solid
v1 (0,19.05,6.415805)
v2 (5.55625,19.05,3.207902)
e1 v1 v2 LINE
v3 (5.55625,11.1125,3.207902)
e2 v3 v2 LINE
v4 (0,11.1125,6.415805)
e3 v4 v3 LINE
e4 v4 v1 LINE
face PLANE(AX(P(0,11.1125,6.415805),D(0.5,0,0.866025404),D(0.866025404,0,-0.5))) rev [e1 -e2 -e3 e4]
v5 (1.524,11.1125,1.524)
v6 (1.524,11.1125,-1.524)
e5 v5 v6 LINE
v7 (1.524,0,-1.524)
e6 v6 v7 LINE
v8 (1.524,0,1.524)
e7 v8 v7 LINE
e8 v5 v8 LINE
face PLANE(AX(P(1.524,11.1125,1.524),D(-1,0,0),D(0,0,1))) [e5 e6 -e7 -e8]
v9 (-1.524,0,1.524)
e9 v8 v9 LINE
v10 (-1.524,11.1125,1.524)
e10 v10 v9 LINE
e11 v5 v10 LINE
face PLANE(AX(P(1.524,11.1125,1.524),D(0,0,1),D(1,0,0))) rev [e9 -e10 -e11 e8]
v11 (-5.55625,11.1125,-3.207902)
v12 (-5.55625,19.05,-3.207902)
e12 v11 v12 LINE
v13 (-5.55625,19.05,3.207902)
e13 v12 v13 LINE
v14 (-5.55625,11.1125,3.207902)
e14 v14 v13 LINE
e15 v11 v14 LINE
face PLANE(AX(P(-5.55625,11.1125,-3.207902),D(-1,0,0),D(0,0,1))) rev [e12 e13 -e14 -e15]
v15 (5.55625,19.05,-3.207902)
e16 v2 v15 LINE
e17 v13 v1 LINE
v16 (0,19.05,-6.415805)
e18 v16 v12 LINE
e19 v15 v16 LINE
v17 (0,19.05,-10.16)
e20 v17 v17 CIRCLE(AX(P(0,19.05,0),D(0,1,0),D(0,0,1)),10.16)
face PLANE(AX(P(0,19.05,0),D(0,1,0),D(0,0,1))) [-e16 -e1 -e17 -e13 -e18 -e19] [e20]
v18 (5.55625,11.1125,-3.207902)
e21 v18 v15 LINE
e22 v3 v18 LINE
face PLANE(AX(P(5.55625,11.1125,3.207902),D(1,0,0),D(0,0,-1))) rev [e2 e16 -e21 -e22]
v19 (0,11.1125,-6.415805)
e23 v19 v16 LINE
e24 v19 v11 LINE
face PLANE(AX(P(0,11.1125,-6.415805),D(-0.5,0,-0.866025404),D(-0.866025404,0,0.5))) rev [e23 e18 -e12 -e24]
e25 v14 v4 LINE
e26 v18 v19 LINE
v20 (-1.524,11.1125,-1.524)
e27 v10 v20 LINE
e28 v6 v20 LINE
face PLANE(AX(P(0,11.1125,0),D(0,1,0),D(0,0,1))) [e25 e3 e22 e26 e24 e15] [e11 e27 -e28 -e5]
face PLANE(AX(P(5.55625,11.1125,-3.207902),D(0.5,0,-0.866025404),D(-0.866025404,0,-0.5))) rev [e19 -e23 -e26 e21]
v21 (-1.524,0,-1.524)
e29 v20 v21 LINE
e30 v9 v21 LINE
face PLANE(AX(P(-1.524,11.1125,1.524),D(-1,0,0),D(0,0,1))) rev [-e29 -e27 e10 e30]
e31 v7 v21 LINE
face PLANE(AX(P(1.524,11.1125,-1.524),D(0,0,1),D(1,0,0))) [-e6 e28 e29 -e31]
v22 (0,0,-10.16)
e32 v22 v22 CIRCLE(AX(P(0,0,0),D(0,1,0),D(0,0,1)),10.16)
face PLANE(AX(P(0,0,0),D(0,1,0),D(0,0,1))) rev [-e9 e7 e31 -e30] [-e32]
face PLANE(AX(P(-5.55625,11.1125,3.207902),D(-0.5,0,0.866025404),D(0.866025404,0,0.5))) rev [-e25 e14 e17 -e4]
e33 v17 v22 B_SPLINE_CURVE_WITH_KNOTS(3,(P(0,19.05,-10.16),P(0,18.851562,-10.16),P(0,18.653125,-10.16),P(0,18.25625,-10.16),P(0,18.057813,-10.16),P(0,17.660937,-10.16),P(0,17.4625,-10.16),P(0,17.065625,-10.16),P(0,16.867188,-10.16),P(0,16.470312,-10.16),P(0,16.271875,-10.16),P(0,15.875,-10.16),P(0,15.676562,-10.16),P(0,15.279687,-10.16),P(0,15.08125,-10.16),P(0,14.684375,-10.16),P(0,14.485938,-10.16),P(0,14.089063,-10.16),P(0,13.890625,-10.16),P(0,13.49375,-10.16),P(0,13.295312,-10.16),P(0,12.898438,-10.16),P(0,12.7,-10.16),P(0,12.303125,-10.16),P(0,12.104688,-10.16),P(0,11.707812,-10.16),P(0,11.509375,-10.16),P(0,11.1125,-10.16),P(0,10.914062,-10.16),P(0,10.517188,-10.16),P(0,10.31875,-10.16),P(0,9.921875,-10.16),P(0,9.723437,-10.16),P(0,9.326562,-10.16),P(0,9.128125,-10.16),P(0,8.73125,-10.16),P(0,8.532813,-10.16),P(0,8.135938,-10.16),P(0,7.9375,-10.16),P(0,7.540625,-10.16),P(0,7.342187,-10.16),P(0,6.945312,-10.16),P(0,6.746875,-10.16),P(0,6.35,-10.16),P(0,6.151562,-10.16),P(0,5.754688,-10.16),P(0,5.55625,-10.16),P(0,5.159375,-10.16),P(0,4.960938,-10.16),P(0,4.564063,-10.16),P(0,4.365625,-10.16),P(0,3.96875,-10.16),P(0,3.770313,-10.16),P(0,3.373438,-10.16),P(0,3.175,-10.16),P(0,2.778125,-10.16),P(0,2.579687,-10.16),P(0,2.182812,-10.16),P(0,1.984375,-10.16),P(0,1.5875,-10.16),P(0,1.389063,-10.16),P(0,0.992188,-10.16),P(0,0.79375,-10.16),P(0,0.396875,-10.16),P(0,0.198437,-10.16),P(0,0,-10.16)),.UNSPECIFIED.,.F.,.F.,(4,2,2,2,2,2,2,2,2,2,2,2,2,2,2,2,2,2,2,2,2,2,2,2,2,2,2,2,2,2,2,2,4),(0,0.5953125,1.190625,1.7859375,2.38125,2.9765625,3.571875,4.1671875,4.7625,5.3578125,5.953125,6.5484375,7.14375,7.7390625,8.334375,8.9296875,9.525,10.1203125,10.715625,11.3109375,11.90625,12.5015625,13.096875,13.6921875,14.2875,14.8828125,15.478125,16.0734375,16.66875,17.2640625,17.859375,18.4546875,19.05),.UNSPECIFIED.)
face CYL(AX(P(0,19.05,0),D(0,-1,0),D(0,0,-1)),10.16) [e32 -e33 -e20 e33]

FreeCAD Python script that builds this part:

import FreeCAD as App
import Part
import Sketcher

V = App.Vector
Q = App.Units.Quantity


def add_polygon(sketch, points):
    """Adds a closed chain of lines whose ends are joined by coincident constraints."""
    first, n = sketch.GeometryCount, len(points)
    for a, b in zip(points, points[1:] + points[:1]):
        sketch.addGeometry(Part.LineSegment(App.Vector(*a, 0), App.Vector(*b, 0)), False)
    for i in range(n):
        sketch.addConstraint(Sketcher.Constraint("Coincident", first + i, 2, first + (i + 1) % n, 1))

doc = App.newDocument("Part")
body = doc.addObject("PartDesign::Body", "Body")

# Sketch on XZ plane
sketch1 = body.newObject("Sketcher::SketchObject", "Sketch")
sketch1.AttachmentSupport = (doc.getObject("XZ_Plane"), [""])
sketch1.MapMode = "FlatFace"
sketch1.addGeometry(Part.Circle(V(0, 0, 0), V(0, 0, 1), 10), False)
sketch1.addConstraint(Sketcher.Constraint("Coincident", 0, 3, -1, 1))
sketch1.addConstraint(Sketcher.Constraint("Diameter", 0, Q("0.8 in")))
pad1 = body.newObject("PartDesign::Pad", "Pad")
pad1.Profile = sketch1
pad1.Length = Q("0.75 in")
pad1.Reversed = True

# Sketch on XZ plane
sketch2 = body.newObject("Sketcher::SketchObject", "Sketch001")
sketch2.AttachmentSupport = (doc.getObject("XZ_Plane"), [""])
sketch2.MapMode = "FlatFace"
sketch2.AttachmentOffset = App.Placement(V(0, 0, -0.75 * 25.4), App.Rotation())
add_polygon(sketch2, [(0, 6), (6, 3), (6, -3), (0, -6), (-6, -3), (-6, 3)])  # lines 0-5
sketch2.addConstraint(Sketcher.Constraint("Vertical", 1))
sketch2.addConstraint(Sketcher.Constraint("Vertical", 4))
sketch2.addConstraint(Sketcher.Constraint("Symmetric", 0, 2, 3, 2, -1, 1))
sketch2.addConstraint(Sketcher.Constraint("Symmetric", 2, 2, 5, 2, -1, 1))
sketch2.addConstraint(Sketcher.Constraint("PointOnObject", 2, 2, -2))
sketch2.addConstraint(Sketcher.Constraint("Parallel", 2, 5))
sketch2.addConstraint(Sketcher.Constraint("Horizontal", 1, 2, 3, 2))
sketch2.addConstraint(Sketcher.Constraint("Angle", 0, Q("-30 deg")))
sketch2.addConstraint(Sketcher.Constraint("DistanceX", -1, 1, 0, 2, Q("0.21875 in")))
sketch2.addConstraint(Sketcher.Constraint("DistanceY", 1, 2, 1, 1, 6.415805))
pocket1 = body.newObject("PartDesign::Pocket", "Pocket")
pocket1.Profile = sketch2
pocket1.Length = Q("0.3125 in")
pocket1.Reversed = True

# Sketch on XZ plane
sketch3 = body.newObject("Sketcher::SketchObject", "Sketch002")
sketch3.AttachmentSupport = (doc.getObject("XZ_Plane"), [""])
sketch3.MapMode = "FlatFace"
add_polygon(sketch3, [(1.5, -1.5), (1.5, 1.5), (-1.5, 1.5), (-1.5, -1.5)])  # lines 0-3
sketch3.addConstraint(Sketcher.Constraint("Vertical", 0))
sketch3.addConstraint(Sketcher.Constraint("Horizontal", 1))
sketch3.addConstraint(Sketcher.Constraint("Vertical", 2))
sketch3.addConstraint(Sketcher.Constraint("Horizontal", 3))
sketch3.addConstraint(Sketcher.Constraint("Symmetric", 0, 2, 2, 2, -1, 1))
sketch3.addConstraint(Sketcher.Constraint("Equal", 3, 0))
sketch3.addConstraint(Sketcher.Constraint("DistanceX", 1, 2, 1, 1, Q("0.12 in")))
pocket2 = body.newObject("PartDesign::Pocket", "Pocket001")
pocket2.Profile = sketch3
pocket2.Length = Q("0.4375 in")

doc.recompute()
